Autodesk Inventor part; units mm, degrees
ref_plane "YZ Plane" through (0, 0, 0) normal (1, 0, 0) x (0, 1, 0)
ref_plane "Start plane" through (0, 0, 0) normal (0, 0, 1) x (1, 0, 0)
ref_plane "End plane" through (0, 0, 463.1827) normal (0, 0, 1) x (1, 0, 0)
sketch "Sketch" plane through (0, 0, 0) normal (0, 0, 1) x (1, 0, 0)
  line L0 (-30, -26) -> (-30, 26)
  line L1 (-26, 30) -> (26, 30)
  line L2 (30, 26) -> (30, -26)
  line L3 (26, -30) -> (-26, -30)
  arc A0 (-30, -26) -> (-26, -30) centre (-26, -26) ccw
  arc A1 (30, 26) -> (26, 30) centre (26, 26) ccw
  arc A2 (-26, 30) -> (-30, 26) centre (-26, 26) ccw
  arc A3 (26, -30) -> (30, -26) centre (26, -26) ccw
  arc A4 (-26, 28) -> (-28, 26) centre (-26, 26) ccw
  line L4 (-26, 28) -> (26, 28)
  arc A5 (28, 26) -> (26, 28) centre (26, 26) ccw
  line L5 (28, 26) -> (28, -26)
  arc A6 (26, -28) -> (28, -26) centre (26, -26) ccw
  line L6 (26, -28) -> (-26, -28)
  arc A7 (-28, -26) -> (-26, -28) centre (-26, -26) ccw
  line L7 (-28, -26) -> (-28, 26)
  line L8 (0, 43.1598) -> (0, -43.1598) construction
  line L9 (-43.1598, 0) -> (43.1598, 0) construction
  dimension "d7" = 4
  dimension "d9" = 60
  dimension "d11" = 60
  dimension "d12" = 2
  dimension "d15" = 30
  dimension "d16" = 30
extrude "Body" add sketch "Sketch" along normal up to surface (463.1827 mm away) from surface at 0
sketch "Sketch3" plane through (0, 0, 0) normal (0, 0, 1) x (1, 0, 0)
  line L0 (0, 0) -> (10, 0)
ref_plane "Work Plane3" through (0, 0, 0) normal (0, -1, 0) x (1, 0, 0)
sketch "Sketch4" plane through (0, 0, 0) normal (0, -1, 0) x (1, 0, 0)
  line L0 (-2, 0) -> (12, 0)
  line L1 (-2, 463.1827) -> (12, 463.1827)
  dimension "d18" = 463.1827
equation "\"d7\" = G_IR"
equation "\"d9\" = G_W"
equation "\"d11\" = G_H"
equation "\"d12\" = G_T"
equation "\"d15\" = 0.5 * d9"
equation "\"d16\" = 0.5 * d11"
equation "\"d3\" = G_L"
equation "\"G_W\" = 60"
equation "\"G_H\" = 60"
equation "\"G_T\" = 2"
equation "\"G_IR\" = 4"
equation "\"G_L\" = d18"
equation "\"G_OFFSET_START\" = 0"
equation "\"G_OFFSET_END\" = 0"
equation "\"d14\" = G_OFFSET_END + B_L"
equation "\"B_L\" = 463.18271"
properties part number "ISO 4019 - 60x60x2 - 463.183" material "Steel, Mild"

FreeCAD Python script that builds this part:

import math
import FreeCAD as App
import Part
import Sketcher

V = App.Vector

doc = App.newDocument("Part")
params = doc.addObject("Spreadsheet::Sheet", "Params")
for row, (alias, value) in enumerate([
    ("sketch1_radius", "4 mm"),
    ("sketch1_radius2", "2 mm"),
    ("pad1_length", "463.1827 mm"),
], start=1):
    params.set(f"A{row}", alias)
    params.set(f"B{row}", "=" + value)
    params.setAlias(f"B{row}", alias)

body = doc.addObject("PartDesign::Body", "Body")

sketch1 = body.newObject("Sketcher::SketchObject", "Sketch")
sketch1.AttachmentSupport = (doc.getObject("XY_Plane"), [""])
sketch1.MapMode = "FlatFace"
sketch1.addGeometry([
    Part.LineSegment(V(-30, 26, 0), V(-30, -26, 0)),
    Part.ArcOfCircle(Part.Circle(V(-26, -26, 0), V(0, 0, 1), 4), math.radians(180), math.radians(270)),
    Part.LineSegment(V(-26, -30, 0), V(26, -30, 0)),
    Part.ArcOfCircle(Part.Circle(V(26, -26, 0), V(0, 0, 1), 4), math.radians(-90), math.radians(0)),
    Part.LineSegment(V(30, -26, 0), V(30, 26, 0)),
    Part.ArcOfCircle(Part.Circle(V(26, 26, 0), V(0, 0, 1), 4), math.radians(0), math.radians(90)),
    Part.LineSegment(V(26, 30, 0), V(-26, 30, 0)),
    Part.ArcOfCircle(Part.Circle(V(-26, 26, 0), V(0, 0, 1), 4), math.radians(90), math.radians(180)),
    Part.ArcOfCircle(Part.Circle(V(-26, 26, 0), V(0, 0, 1), 2), math.radians(90), math.radians(180)),
    Part.LineSegment(V(-26, 28, 0), V(26, 28, 0)),
    Part.ArcOfCircle(Part.Circle(V(26, 26, 0), V(0, 0, 1), 2), math.radians(0), math.radians(90)),
    Part.LineSegment(V(28, 26, 0), V(28, -26, 0)),
    Part.ArcOfCircle(Part.Circle(V(26, -26, 0), V(0, 0, 1), 2), math.radians(-90), math.radians(0)),
    Part.LineSegment(V(26, -28, 0), V(-26, -28, 0)),
    Part.ArcOfCircle(Part.Circle(V(-26, -26, 0), V(0, 0, 1), 2), math.radians(180), math.radians(270)),
    Part.LineSegment(V(-28, -26, 0), V(-28, 26, 0)),
], False)
sketch1.addConstraint([
    Sketcher.Constraint("Tangent", 0, 2, 1, 1),
    Sketcher.Constraint("Tangent", 1, 2, 2, 1),
    Sketcher.Constraint("Tangent", 2, 2, 3, 1),
    Sketcher.Constraint("Tangent", 3, 2, 4, 1),
    Sketcher.Constraint("Tangent", 4, 2, 5, 1),
    Sketcher.Constraint("Tangent", 5, 2, 6, 1),
    Sketcher.Constraint("Tangent", 6, 2, 7, 1),
    Sketcher.Constraint("Tangent", 7, 2, 0, 1),
    Sketcher.Constraint("Tangent", 8, 1, 9, 1),
    Sketcher.Constraint("Tangent", 9, 2, 10, 2),
    Sketcher.Constraint("Tangent", 10, 1, 11, 1),
    Sketcher.Constraint("Tangent", 11, 2, 12, 2),
    Sketcher.Constraint("Tangent", 12, 1, 13, 1),
    Sketcher.Constraint("Tangent", 13, 2, 14, 2),
    Sketcher.Constraint("Tangent", 14, 1, 15, 1),
    Sketcher.Constraint("Tangent", 15, 2, 8, 2),
    Sketcher.Constraint("Vertical", 0),
    Sketcher.Constraint("Horizontal", 2),
    Sketcher.Constraint("Vertical", 4),
    Sketcher.Constraint("Horizontal", 6),
    Sketcher.Constraint("Horizontal", 9),
    Sketcher.Constraint("Vertical", 11),
    Sketcher.Constraint("Horizontal", 13),
    Sketcher.Constraint("Vertical", 15),
    Sketcher.Constraint("Coincident", 8, 3, 7, 3),
    Sketcher.Constraint("Coincident", 10, 3, 5, 3),
    Sketcher.Constraint("Coincident", 12, 3, 3, 3),
    Sketcher.Constraint("Equal", 1, 3),
    Sketcher.Constraint("Equal", 3, 5),
    Sketcher.Constraint("Equal", 5, 7),
    Sketcher.Constraint("Equal", 12, 14),
    Sketcher.Constraint("Symmetric", 1, 3, 5, 3, -1, 1),
    Sketcher.Constraint("Equal", 13, 0),
    Sketcher.Constraint("Radius", 1, 4.0),
    Sketcher.Constraint("Radius", 8, 2.0),
    Sketcher.Constraint("DistanceX", 0, 2, -1, 1, 30.0),
])
sketch1.setExpression("Constraints[33]", "Params.sketch1_radius")
sketch1.setExpression("Constraints[34]", "Params.sketch1_radius2")
pad1 = body.newObject("PartDesign::Pad", "Pad")
pad1.Profile = sketch1
pad1.setExpression("Length", "Params.pad1_length")

doc.recompute()
